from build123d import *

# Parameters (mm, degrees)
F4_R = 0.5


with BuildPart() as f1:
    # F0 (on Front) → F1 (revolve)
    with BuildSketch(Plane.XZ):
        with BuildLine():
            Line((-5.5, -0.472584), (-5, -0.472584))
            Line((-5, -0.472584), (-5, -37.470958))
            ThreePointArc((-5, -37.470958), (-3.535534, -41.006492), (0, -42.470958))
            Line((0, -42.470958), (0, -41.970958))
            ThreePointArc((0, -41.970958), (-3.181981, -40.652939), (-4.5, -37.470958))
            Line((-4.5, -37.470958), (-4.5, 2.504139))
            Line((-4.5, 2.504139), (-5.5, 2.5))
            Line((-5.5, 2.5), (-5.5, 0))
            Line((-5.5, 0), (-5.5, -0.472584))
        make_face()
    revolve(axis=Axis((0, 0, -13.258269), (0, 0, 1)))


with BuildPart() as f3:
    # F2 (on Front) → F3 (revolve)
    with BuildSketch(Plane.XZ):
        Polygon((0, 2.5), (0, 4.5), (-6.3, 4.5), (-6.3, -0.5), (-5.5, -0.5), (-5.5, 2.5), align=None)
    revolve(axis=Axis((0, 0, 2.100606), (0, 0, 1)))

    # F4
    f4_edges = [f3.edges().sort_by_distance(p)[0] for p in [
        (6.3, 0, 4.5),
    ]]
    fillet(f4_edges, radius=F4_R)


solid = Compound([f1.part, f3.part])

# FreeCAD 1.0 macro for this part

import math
import FreeCAD as App
import Part
import Sketcher

V = App.Vector
Q = App.Units.Quantity


def edges_at(feature, points):
    """Names of the edges that pass closest to the given points."""
    edges = feature.Shape.Edges
    near = lambda p: min(range(len(edges)), key=lambda i: edges[i].distToShape(Part.Vertex(*p))[0])
    return sorted({f"Edge{near(p) + 1}" for p in points})

doc = App.newDocument("Part")
body = doc.addObject("PartDesign::Body", "Body")

# Sketch on XZ plane
sketch1 = body.newObject("Sketcher::SketchObject", "Sketch")
sketch1.AttachmentSupport = (doc.getObject("XZ_Plane"), [""])
sketch1.MapMode = "FlatFace"
sketch1.addGeometry(Part.LineSegment(V(-5.5, -0.5, 0), V(-5, -0.5, 0)), False)
sketch1.addGeometry(Part.LineSegment(V(-5, -0.5, 0), V(-5, -37.5, 0)), False)
sketch1.addGeometry(Part.ArcOfCircle(Part.Circle(V(0, -37.5, 0), V(0, 0, 1), 5), math.radians(180), math.radians(270)), False)
sketch1.addGeometry(Part.LineSegment(V(0, -42.5, 0), V(0, -42, 0)), False)
sketch1.addGeometry(Part.ArcOfCircle(Part.Circle(V(0, -37.5, 0), V(0, 0, 1), 4.5), math.radians(180), math.radians(270)), False)
sketch1.addGeometry(Part.LineSegment(V(-4.5, -37.5, 0), V(-4.5, 2.5, 0)), False)
sketch1.addGeometry(Part.LineSegment(V(-4.5, 2.5, 0), V(-5.5, 2.5, 0)), False)
sketch1.addGeometry(Part.LineSegment(V(-5.5, 2.5, 0), V(-5.5, -0.5, 0)), False)
sketch1.addConstraint(Sketcher.Constraint("Coincident", 0, 2, 1, 1))
sketch1.addConstraint(Sketcher.Constraint("Tangent", 1, 2, 2, 1))
sketch1.addConstraint(Sketcher.Constraint("Coincident", 2, 2, 3, 1))
sketch1.addConstraint(Sketcher.Constraint("Coincident", 3, 2, 4, 2))
sketch1.addConstraint(Sketcher.Constraint("Tangent", 4, 1, 5, 1))
sketch1.addConstraint(Sketcher.Constraint("Coincident", 5, 2, 6, 1))
sketch1.addConstraint(Sketcher.Constraint("Coincident", 6, 2, 7, 1))
sketch1.addConstraint(Sketcher.Constraint("Coincident", 7, 2, 0, 1))
sketch1.addConstraint(Sketcher.Constraint("Horizontal", 0))
sketch1.addConstraint(Sketcher.Constraint("Vertical", 1))
sketch1.addConstraint(Sketcher.Constraint("Vertical", 3))
sketch1.addConstraint(Sketcher.Constraint("Vertical", 5))
sketch1.addConstraint(Sketcher.Constraint("Vertical", 7))
sketch1.addConstraint(Sketcher.Constraint("Coincident", 4, 3, 2, 3))
sketch1.addConstraint(Sketcher.Constraint("PointOnObject", 2, 3, -2))
sketch1.addConstraint(Sketcher.Constraint("PointOnObject", 2, 2, -2))
sketch1.addConstraint(Sketcher.Constraint("Equal", 0, 3))
sketch1.addConstraint(Sketcher.Constraint("Radius", 2, Q("5 mm")))
sketch1.addConstraint(Sketcher.Constraint("Radius", 4, Q("4.499998 mm")))
sketch1.addConstraint(Sketcher.Constraint("DistanceY", -1, 1, 6, 2, Q("2.5 mm")))
sketch1.addConstraint(Sketcher.Constraint("DistanceY", 4, 3, 5, 2, Q("39.975099 mm")))
sketch1.addConstraint(Sketcher.Constraint("DistanceY", 1, 2, 1, 1, Q("36.998374 mm")))
sketch1.addConstraint(Sketcher.Constraint("DistanceY", 7, 2, 7, 1, Q("2.972584 mm")))
revolution = body.newObject("PartDesign::Revolution", "Revolution")
revolution.Profile = sketch1
revolution.ReferenceAxis = (sketch1, ["V_Axis"])
revolution.Angle = 360
body2 = doc.addObject("PartDesign::Body", "Body001")

# Sketch on XZ plane
sketch2 = body2.newObject("Sketcher::SketchObject", "Sketch001")
sketch2.AttachmentSupport = (doc.getObject("XZ_Plane001"), [""])
sketch2.MapMode = "FlatFace"
sketch2.addGeometry(Part.LineSegment(V(0, 2.5, 0), V(0, 4.5, 0)), False)
sketch2.addGeometry(Part.LineSegment(V(0, 4.5, 0), V(-6.3, 4.5, 0)), False)
sketch2.addGeometry(Part.LineSegment(V(-6.3, 4.5, 0), V(-6.3, -0.5, 0)), False)
sketch2.addGeometry(Part.LineSegment(V(-6.3, -0.5, 0), V(-5.5, -0.5, 0)), False)
sketch2.addGeometry(Part.LineSegment(V(-5.5, -0.5, 0), V(-5.5, 2.5, 0)), False)
sketch2.addGeometry(Part.LineSegment(V(-5.5, 2.5, 0), V(0, 2.5, 0)), False)
sketch2.addConstraint(Sketcher.Constraint("Coincident", 0, 2, 1, 1))
sketch2.addConstraint(Sketcher.Constraint("Coincident", 1, 2, 2, 1))
sketch2.addConstraint(Sketcher.Constraint("Coincident", 2, 2, 3, 1))
sketch2.addConstraint(Sketcher.Constraint("Coincident", 3, 2, 4, 1))
sketch2.addConstraint(Sketcher.Constraint("Coincident", 4, 2, 5, 1))
sketch2.addConstraint(Sketcher.Constraint("Coincident", 5, 2, 0, 1))
sketch2.addConstraint(Sketcher.Constraint("Vertical", 0))
sketch2.addConstraint(Sketcher.Constraint("Horizontal", 1))
sketch2.addConstraint(Sketcher.Constraint("Vertical", 2))
sketch2.addConstraint(Sketcher.Constraint("Horizontal", 3))
sketch2.addConstraint(Sketcher.Constraint("Vertical", 4))
sketch2.addConstraint(Sketcher.Constraint("Horizontal", 5))
sketch2.addConstraint(Sketcher.Constraint("PointOnObject", 0, 2, -2))
sketch2.addConstraint(Sketcher.Constraint("DistanceY", 0, 1, 0, 2, Q("2 mm")))
sketch2.addConstraint(Sketcher.Constraint("DistanceY", 2, 2, 2, 1, Q("5 mm")))
sketch2.addConstraint(Sketcher.Constraint("DistanceX", 1, 2, 1, 1, Q("6.3 mm")))
sketch2.addConstraint(Sketcher.Constraint("DistanceX", 3, 1, 3, 2, Q("0.8 mm")))
sketch2.addConstraint(Sketcher.Constraint("DistanceY", -1, 1, 0, 2, Q("4.5 mm")))
revolution2 = body2.newObject("PartDesign::Revolution", "Revolution001")
revolution2.Profile = sketch2
revolution2.ReferenceAxis = (sketch2, ["V_Axis"])
revolution2.Angle = 360
doc.recompute()

fillet = body2.newObject("PartDesign::Fillet", "Fillet")
fillet.Base = (revolution2, edges_at(revolution2, [(6.3, 0, 4.5)]))
fillet.Radius = 0.5

doc.recompute()
